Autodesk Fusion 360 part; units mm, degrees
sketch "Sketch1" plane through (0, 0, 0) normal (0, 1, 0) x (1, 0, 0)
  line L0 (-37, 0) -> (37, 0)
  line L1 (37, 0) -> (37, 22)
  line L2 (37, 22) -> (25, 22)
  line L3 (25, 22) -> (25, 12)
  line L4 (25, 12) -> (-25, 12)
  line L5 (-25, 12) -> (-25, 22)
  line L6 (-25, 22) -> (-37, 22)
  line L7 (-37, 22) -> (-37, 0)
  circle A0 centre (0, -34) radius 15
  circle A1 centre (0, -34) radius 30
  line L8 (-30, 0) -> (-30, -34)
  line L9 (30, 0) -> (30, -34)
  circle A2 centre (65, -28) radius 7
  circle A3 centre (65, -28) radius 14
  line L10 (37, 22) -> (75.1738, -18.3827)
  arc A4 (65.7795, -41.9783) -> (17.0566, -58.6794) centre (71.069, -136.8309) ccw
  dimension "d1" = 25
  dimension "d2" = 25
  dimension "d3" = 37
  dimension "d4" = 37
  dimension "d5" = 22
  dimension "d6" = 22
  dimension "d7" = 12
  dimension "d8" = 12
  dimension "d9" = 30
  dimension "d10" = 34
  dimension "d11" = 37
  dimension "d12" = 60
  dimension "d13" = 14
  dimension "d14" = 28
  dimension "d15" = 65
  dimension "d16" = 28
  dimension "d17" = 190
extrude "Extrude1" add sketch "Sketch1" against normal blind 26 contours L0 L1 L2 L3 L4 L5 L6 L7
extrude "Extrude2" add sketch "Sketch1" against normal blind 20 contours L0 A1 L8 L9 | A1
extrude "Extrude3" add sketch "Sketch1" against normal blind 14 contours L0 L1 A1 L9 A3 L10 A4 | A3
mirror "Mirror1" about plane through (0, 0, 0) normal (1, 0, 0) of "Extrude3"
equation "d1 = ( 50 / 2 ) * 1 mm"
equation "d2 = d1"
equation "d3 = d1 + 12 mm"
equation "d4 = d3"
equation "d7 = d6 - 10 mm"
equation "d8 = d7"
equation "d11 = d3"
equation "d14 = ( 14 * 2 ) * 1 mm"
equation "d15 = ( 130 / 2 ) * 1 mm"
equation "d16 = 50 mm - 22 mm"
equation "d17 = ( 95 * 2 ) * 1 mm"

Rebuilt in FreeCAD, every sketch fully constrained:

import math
import FreeCAD as App
import Part
import Sketcher


def add_polygon(sketch, points):
    """Adds a closed chain of lines whose ends are joined by coincident constraints."""
    first, n = sketch.GeometryCount, len(points)
    for a, b in zip(points, points[1:] + points[:1]):
        sketch.addGeometry(Part.LineSegment(App.Vector(*a, 0), App.Vector(*b, 0)), False)
    for i in range(n):
        sketch.addConstraint(Sketcher.Constraint("Coincident", first + i, 2, first + (i + 1) % n, 1))

doc = App.newDocument("Part")
body = doc.addObject("PartDesign::Body", "Body")

sketch1 = body.newObject("Sketcher::SketchObject", "Sketch")
sketch1.AttachmentSupport = (doc.getObject("XZ_Plane"), [""])
sketch1.MapMode = "FlatFace"
add_polygon(sketch1, [(-37, -22), (-37, 0), (37, 0), (37, -22), (25, -22), (25, -12), (-25, -12), (-25, -22)])
sketch1.addConstraint([
    Sketcher.Constraint("Vertical", 0),
    Sketcher.Constraint("Horizontal", 1),
    Sketcher.Constraint("Vertical", 2),
    Sketcher.Constraint("Horizontal", 3),
    Sketcher.Constraint("Vertical", 4),
    Sketcher.Constraint("Horizontal", 5),
    Sketcher.Constraint("Vertical", 6),
    Sketcher.Constraint("Horizontal", 7),
    Sketcher.Constraint("Symmetric", 0, 2, 1, 2, -1, 1),
    Sketcher.Constraint("Symmetric", 3, 2, 6, 2, -2),
    Sketcher.Constraint("DistanceX", 3, 2, 3, 1, 12.0),
    Sketcher.Constraint("DistanceY", 0, 1, 0, 2, 22.0),
    Sketcher.Constraint("DistanceX", 0, 2, -1, 1, 37.0),
    Sketcher.Constraint("DistanceY", 4, 2, -1, 1, 12.0),
])
pad1 = body.newObject("PartDesign::Pad", "Pad")
pad1.Profile = sketch1
pad1.Length = 26

sketch2 = body.newObject("Sketcher::SketchObject", "Sketch001")
sketch2.AttachmentSupport = (doc.getObject("XZ_Plane"), [""])
sketch2.MapMode = "FlatFace"
sketch2.addGeometry([
    Part.LineSegment(App.Vector(30, 0, 0), App.Vector(-30, 0, 0)),
    Part.LineSegment(App.Vector(-30, 0, 0), App.Vector(-30, 34, 0)),
    Part.ArcOfCircle(Part.Circle(App.Vector(0, 34, 0), App.Vector(0, 0, 1), 30), math.radians(0), math.radians(180)),
    Part.LineSegment(App.Vector(30, 34, 0), App.Vector(30, 0, 0)),
    Part.Circle(App.Vector(0, 34, 0), App.Vector(0, 0, 1), 15),
], False)
sketch2.addConstraint([
    Sketcher.Constraint("Coincident", 0, 2, 1, 1),
    Sketcher.Constraint("Tangent", 1, 2, 2, 2),
    Sketcher.Constraint("Tangent", 2, 1, 3, 1),
    Sketcher.Constraint("Coincident", 3, 2, 0, 1),
    Sketcher.Constraint("Horizontal", 0),
    Sketcher.Constraint("Vertical", 1),
    Sketcher.Constraint("Vertical", 3),
    Sketcher.Constraint("Coincident", 4, 3, 2, 3),
    Sketcher.Constraint("Symmetric", 0, 2, 3, 2, -1, 1),
    Sketcher.Constraint("Diameter", 4, 30.0),
    Sketcher.Constraint("Radius", 2, 30.0),
    Sketcher.Constraint("DistanceY", 1, 1, 1, 2, 34.0),
])
pad2 = body.newObject("PartDesign::Pad", "Pad001")
pad2.Profile = sketch2
pad2.Length = 20

sketch3 = body.newObject("Sketcher::SketchObject", "Sketch002")
sketch3.AttachmentSupport = (doc.getObject("XZ_Plane"), [""])
sketch3.MapMode = "FlatFace"
sketch3.addGeometry([
    Part.LineSegment(App.Vector(37, 0, 0), App.Vector(30, 0, 0)),
    Part.LineSegment(App.Vector(30, 0, 0), App.Vector(30, 34, 0)),
    Part.ArcOfCircle(Part.Circle(App.Vector(0, 34, 0), App.Vector(0, 0, 1), 30), math.radians(0), math.radians(55.350602)),
    Part.ArcOfCircle(Part.Circle(App.Vector(71.069, 136.8309, 0), App.Vector(0, 0, 1), 94.999971), math.radians(-124.649293), math.radians(-93.19182)),
    Part.ArcOfCircle(Part.Circle(App.Vector(65, 28, 0), App.Vector(0, 0, 1), 14), math.radians(-43.389342), math.radians(86.808206)),
    Part.LineSegment(App.Vector(75.1738, 18.3827, 0), App.Vector(37, -22, 0)),
    Part.LineSegment(App.Vector(37, -22, 0), App.Vector(37, 0, 0)),
    Part.Circle(App.Vector(65, 28, 0), App.Vector(0, 0, 1), 7),
], False)
sketch3.addConstraint([
    Sketcher.Constraint("Coincident", 0, 2, 1, 1),
    Sketcher.Constraint("Tangent", 1, 2, 2, 1),
    Sketcher.Constraint("Tangent", 2, 2, 3, 1),
    Sketcher.Constraint("Tangent", 3, 2, 4, 2),
    Sketcher.Constraint("Tangent", 4, 1, 5, 1),
    Sketcher.Constraint("Coincident", 5, 2, 6, 1),
    Sketcher.Constraint("Coincident", 6, 2, 0, 1),
    Sketcher.Constraint("Horizontal", 0),
    Sketcher.Constraint("Vertical", 1),
    Sketcher.Constraint("Vertical", 6),
    Sketcher.Constraint("Coincident", 7, 3, 4, 3),
    Sketcher.Constraint("PointOnObject", 2, 3, -2),
    Sketcher.Constraint("PointOnObject", 0, 2, -1),
    Sketcher.Constraint("Diameter", 7, 14.0),
    Sketcher.Constraint("Radius", 2, 30.0),
    Sketcher.Constraint("Radius", 3, 95.0),
    Sketcher.Constraint("Radius", 4, 14.0),
    Sketcher.Constraint("DistanceY", 1, 1, 1, 2, 34.0),
    Sketcher.Constraint("DistanceY", 6, 1, 6, 2, 22.0),
    Sketcher.Constraint("DistanceX", -1, 1, 4, 3, 65.0),
    Sketcher.Constraint("DistanceY", -1, 1, 4, 3, 28.0),
    Sketcher.Constraint("DistanceX", -1, 1, 5, 2, 37.0),
])
pad3 = body.newObject("PartDesign::Pad", "Pad002")
pad3.Profile = sketch3
pad3.Length = 14
doc.recompute()

mirrored = body.newObject("PartDesign::Mirrored", "Mirrored")
mirrored.Originals = [pad3]
mirrored.MirrorPlane = (doc.getObject("YZ_Plane"), [""])
body.Tip = mirrored

doc.recompute()
